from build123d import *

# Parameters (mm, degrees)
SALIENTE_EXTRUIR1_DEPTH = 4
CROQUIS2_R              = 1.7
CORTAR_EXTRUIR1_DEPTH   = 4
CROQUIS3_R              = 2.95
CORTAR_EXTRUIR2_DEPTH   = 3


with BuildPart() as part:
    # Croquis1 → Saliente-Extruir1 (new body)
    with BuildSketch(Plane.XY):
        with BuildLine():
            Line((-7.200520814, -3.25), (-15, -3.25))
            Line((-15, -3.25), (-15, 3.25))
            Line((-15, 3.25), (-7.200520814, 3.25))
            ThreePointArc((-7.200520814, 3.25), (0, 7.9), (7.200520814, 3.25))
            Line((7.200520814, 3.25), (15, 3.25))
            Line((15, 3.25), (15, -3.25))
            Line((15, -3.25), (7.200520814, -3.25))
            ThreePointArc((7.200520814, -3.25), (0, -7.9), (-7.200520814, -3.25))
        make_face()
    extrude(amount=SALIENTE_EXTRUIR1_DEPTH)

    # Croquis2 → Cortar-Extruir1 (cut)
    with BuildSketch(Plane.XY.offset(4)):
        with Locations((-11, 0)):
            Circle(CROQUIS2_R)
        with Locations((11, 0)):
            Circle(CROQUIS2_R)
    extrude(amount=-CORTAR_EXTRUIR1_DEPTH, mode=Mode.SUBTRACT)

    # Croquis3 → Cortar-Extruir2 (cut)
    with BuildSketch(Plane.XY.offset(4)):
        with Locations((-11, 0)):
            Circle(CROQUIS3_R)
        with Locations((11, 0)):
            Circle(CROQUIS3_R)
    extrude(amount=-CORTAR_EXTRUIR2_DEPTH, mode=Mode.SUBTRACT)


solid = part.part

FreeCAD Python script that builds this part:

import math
import FreeCAD as App
import Part
import Sketcher

V = App.Vector
Q = App.Units.Quantity

doc = App.newDocument("Part")
body = doc.addObject("PartDesign::Body", "Body")

# Sketch on XY plane
sketch1 = body.newObject("Sketcher::SketchObject", "Sketch")
sketch1.AttachmentSupport = (doc.getObject("XY_Plane"), [""])
sketch1.MapMode = "FlatFace"
sketch1.addGeometry([
    Part.LineSegment(V(-15, -3, 0), V(-7, -3, 0)),  # 0
    Part.ArcOfCircle(Part.Circle(V(0, 0, 0), V(0, 0, 1), 8), math.radians(-156), math.radians(-24)),  # 1
    Part.LineSegment(V(7, -3, 0), V(15, -3, 0)),  # 2
    Part.LineSegment(V(15, -3, 0), V(15, 3, 0)),  # 3
    Part.LineSegment(V(15, 3, 0), V(7, 3, 0)),  # 4
    Part.ArcOfCircle(Part.Circle(V(0, 0, 0), V(0, 0, 1), 8), math.radians(24), math.radians(156)),  # 5
    Part.LineSegment(V(-7, 3, 0), V(-15, 3, 0)),  # 6
    Part.LineSegment(V(-15, 3, 0), V(-15, -3, 0)),  # 7
], False)
sketch1.addConstraint([
    Sketcher.Constraint("Coincident", 0, 2, 1, 1),
    Sketcher.Constraint("Coincident", 1, 2, 2, 1),
    Sketcher.Constraint("Coincident", 2, 2, 3, 1),
    Sketcher.Constraint("Coincident", 3, 2, 4, 1),
    Sketcher.Constraint("Coincident", 4, 2, 5, 1),
    Sketcher.Constraint("Coincident", 5, 2, 6, 1),
    Sketcher.Constraint("Coincident", 6, 2, 7, 1),
    Sketcher.Constraint("Coincident", 7, 2, 0, 1),
    Sketcher.Constraint("Horizontal", 0),
    Sketcher.Constraint("Horizontal", 2),
    Sketcher.Constraint("Vertical", 3),
    Sketcher.Constraint("Horizontal", 4),
    Sketcher.Constraint("Horizontal", 6),
    Sketcher.Constraint("Vertical", 7),
    Sketcher.Constraint("Coincident", 1, 3, -1, 1),
    Sketcher.Constraint("Coincident", 5, 3, -1, 1),
    Sketcher.Constraint("Equal", 1, 5),
    Sketcher.Constraint("Symmetric", 2, 2, 6, 2, -1, 1),
    Sketcher.Constraint("Horizontal", 0, 2, 1, 2),
    Sketcher.Constraint("Horizontal", 4, 2, 5, 2),
    Sketcher.Constraint("Radius", 1, Q("7.9 mm")),
    Sketcher.Constraint("DistanceY", 3, 1, 3, 2, Q("6.5 mm")),
    Sketcher.Constraint("DistanceX", -1, 1, 2, 2, Q("15 mm")),
])
pad1 = body.newObject("PartDesign::Pad", "Pad")
pad1.Profile = sketch1
pad1.Length = 4

# Sketch on XY plane
sketch2 = body.newObject("Sketcher::SketchObject", "Sketch001")
sketch2.AttachmentSupport = (doc.getObject("XY_Plane"), [""])
sketch2.MapMode = "FlatFace"
sketch2.AttachmentOffset = App.Placement(V(0, 0, 4), App.Rotation())
sketch2.addGeometry([
    Part.Circle(V(-11, 0, 0), V(0, 0, 1), 1.7),
    Part.Circle(V(11, 0, 0), V(0, 0, 1), 1.7),
], False)
sketch2.addConstraint([
    Sketcher.Constraint("Equal", 0, 1),
    Sketcher.Constraint("Symmetric", 0, 3, 1, 3, -1, 1),
    Sketcher.Constraint("PointOnObject", 0, 3, -1),
    Sketcher.Constraint("Diameter", 0, Q("3.4 mm")),
    Sketcher.Constraint("DistanceX", 0, 3, -1, 1, Q("11 mm")),
])
pocket1 = body.newObject("PartDesign::Pocket", "Pocket")
pocket1.Profile = sketch2
pocket1.Length = 4

# Sketch on XY plane
sketch3 = body.newObject("Sketcher::SketchObject", "Sketch002")
sketch3.AttachmentSupport = (doc.getObject("XY_Plane"), [""])
sketch3.MapMode = "FlatFace"
sketch3.AttachmentOffset = App.Placement(V(0, 0, 4), App.Rotation())
sketch3.addGeometry([
    Part.Circle(V(-11, 0, 0), V(0, 0, 1), 3),
    Part.Circle(V(11, 0, 0), V(0, 0, 1), 3),
], False)
sketch3.addConstraint([
    Sketcher.Constraint("Equal", 0, 1),
    Sketcher.Constraint("Symmetric", 0, 3, 1, 3, -1, 1),
    Sketcher.Constraint("PointOnObject", 0, 3, -1),
    Sketcher.Constraint("Diameter", 0, Q("5.9 mm")),
    Sketcher.Constraint("DistanceX", 0, 3, -1, 1, Q("11 mm")),
])
pocket2 = body.newObject("PartDesign::Pocket", "Pocket001")
pocket2.Profile = sketch3
pocket2.Length = 3

doc.recompute()
